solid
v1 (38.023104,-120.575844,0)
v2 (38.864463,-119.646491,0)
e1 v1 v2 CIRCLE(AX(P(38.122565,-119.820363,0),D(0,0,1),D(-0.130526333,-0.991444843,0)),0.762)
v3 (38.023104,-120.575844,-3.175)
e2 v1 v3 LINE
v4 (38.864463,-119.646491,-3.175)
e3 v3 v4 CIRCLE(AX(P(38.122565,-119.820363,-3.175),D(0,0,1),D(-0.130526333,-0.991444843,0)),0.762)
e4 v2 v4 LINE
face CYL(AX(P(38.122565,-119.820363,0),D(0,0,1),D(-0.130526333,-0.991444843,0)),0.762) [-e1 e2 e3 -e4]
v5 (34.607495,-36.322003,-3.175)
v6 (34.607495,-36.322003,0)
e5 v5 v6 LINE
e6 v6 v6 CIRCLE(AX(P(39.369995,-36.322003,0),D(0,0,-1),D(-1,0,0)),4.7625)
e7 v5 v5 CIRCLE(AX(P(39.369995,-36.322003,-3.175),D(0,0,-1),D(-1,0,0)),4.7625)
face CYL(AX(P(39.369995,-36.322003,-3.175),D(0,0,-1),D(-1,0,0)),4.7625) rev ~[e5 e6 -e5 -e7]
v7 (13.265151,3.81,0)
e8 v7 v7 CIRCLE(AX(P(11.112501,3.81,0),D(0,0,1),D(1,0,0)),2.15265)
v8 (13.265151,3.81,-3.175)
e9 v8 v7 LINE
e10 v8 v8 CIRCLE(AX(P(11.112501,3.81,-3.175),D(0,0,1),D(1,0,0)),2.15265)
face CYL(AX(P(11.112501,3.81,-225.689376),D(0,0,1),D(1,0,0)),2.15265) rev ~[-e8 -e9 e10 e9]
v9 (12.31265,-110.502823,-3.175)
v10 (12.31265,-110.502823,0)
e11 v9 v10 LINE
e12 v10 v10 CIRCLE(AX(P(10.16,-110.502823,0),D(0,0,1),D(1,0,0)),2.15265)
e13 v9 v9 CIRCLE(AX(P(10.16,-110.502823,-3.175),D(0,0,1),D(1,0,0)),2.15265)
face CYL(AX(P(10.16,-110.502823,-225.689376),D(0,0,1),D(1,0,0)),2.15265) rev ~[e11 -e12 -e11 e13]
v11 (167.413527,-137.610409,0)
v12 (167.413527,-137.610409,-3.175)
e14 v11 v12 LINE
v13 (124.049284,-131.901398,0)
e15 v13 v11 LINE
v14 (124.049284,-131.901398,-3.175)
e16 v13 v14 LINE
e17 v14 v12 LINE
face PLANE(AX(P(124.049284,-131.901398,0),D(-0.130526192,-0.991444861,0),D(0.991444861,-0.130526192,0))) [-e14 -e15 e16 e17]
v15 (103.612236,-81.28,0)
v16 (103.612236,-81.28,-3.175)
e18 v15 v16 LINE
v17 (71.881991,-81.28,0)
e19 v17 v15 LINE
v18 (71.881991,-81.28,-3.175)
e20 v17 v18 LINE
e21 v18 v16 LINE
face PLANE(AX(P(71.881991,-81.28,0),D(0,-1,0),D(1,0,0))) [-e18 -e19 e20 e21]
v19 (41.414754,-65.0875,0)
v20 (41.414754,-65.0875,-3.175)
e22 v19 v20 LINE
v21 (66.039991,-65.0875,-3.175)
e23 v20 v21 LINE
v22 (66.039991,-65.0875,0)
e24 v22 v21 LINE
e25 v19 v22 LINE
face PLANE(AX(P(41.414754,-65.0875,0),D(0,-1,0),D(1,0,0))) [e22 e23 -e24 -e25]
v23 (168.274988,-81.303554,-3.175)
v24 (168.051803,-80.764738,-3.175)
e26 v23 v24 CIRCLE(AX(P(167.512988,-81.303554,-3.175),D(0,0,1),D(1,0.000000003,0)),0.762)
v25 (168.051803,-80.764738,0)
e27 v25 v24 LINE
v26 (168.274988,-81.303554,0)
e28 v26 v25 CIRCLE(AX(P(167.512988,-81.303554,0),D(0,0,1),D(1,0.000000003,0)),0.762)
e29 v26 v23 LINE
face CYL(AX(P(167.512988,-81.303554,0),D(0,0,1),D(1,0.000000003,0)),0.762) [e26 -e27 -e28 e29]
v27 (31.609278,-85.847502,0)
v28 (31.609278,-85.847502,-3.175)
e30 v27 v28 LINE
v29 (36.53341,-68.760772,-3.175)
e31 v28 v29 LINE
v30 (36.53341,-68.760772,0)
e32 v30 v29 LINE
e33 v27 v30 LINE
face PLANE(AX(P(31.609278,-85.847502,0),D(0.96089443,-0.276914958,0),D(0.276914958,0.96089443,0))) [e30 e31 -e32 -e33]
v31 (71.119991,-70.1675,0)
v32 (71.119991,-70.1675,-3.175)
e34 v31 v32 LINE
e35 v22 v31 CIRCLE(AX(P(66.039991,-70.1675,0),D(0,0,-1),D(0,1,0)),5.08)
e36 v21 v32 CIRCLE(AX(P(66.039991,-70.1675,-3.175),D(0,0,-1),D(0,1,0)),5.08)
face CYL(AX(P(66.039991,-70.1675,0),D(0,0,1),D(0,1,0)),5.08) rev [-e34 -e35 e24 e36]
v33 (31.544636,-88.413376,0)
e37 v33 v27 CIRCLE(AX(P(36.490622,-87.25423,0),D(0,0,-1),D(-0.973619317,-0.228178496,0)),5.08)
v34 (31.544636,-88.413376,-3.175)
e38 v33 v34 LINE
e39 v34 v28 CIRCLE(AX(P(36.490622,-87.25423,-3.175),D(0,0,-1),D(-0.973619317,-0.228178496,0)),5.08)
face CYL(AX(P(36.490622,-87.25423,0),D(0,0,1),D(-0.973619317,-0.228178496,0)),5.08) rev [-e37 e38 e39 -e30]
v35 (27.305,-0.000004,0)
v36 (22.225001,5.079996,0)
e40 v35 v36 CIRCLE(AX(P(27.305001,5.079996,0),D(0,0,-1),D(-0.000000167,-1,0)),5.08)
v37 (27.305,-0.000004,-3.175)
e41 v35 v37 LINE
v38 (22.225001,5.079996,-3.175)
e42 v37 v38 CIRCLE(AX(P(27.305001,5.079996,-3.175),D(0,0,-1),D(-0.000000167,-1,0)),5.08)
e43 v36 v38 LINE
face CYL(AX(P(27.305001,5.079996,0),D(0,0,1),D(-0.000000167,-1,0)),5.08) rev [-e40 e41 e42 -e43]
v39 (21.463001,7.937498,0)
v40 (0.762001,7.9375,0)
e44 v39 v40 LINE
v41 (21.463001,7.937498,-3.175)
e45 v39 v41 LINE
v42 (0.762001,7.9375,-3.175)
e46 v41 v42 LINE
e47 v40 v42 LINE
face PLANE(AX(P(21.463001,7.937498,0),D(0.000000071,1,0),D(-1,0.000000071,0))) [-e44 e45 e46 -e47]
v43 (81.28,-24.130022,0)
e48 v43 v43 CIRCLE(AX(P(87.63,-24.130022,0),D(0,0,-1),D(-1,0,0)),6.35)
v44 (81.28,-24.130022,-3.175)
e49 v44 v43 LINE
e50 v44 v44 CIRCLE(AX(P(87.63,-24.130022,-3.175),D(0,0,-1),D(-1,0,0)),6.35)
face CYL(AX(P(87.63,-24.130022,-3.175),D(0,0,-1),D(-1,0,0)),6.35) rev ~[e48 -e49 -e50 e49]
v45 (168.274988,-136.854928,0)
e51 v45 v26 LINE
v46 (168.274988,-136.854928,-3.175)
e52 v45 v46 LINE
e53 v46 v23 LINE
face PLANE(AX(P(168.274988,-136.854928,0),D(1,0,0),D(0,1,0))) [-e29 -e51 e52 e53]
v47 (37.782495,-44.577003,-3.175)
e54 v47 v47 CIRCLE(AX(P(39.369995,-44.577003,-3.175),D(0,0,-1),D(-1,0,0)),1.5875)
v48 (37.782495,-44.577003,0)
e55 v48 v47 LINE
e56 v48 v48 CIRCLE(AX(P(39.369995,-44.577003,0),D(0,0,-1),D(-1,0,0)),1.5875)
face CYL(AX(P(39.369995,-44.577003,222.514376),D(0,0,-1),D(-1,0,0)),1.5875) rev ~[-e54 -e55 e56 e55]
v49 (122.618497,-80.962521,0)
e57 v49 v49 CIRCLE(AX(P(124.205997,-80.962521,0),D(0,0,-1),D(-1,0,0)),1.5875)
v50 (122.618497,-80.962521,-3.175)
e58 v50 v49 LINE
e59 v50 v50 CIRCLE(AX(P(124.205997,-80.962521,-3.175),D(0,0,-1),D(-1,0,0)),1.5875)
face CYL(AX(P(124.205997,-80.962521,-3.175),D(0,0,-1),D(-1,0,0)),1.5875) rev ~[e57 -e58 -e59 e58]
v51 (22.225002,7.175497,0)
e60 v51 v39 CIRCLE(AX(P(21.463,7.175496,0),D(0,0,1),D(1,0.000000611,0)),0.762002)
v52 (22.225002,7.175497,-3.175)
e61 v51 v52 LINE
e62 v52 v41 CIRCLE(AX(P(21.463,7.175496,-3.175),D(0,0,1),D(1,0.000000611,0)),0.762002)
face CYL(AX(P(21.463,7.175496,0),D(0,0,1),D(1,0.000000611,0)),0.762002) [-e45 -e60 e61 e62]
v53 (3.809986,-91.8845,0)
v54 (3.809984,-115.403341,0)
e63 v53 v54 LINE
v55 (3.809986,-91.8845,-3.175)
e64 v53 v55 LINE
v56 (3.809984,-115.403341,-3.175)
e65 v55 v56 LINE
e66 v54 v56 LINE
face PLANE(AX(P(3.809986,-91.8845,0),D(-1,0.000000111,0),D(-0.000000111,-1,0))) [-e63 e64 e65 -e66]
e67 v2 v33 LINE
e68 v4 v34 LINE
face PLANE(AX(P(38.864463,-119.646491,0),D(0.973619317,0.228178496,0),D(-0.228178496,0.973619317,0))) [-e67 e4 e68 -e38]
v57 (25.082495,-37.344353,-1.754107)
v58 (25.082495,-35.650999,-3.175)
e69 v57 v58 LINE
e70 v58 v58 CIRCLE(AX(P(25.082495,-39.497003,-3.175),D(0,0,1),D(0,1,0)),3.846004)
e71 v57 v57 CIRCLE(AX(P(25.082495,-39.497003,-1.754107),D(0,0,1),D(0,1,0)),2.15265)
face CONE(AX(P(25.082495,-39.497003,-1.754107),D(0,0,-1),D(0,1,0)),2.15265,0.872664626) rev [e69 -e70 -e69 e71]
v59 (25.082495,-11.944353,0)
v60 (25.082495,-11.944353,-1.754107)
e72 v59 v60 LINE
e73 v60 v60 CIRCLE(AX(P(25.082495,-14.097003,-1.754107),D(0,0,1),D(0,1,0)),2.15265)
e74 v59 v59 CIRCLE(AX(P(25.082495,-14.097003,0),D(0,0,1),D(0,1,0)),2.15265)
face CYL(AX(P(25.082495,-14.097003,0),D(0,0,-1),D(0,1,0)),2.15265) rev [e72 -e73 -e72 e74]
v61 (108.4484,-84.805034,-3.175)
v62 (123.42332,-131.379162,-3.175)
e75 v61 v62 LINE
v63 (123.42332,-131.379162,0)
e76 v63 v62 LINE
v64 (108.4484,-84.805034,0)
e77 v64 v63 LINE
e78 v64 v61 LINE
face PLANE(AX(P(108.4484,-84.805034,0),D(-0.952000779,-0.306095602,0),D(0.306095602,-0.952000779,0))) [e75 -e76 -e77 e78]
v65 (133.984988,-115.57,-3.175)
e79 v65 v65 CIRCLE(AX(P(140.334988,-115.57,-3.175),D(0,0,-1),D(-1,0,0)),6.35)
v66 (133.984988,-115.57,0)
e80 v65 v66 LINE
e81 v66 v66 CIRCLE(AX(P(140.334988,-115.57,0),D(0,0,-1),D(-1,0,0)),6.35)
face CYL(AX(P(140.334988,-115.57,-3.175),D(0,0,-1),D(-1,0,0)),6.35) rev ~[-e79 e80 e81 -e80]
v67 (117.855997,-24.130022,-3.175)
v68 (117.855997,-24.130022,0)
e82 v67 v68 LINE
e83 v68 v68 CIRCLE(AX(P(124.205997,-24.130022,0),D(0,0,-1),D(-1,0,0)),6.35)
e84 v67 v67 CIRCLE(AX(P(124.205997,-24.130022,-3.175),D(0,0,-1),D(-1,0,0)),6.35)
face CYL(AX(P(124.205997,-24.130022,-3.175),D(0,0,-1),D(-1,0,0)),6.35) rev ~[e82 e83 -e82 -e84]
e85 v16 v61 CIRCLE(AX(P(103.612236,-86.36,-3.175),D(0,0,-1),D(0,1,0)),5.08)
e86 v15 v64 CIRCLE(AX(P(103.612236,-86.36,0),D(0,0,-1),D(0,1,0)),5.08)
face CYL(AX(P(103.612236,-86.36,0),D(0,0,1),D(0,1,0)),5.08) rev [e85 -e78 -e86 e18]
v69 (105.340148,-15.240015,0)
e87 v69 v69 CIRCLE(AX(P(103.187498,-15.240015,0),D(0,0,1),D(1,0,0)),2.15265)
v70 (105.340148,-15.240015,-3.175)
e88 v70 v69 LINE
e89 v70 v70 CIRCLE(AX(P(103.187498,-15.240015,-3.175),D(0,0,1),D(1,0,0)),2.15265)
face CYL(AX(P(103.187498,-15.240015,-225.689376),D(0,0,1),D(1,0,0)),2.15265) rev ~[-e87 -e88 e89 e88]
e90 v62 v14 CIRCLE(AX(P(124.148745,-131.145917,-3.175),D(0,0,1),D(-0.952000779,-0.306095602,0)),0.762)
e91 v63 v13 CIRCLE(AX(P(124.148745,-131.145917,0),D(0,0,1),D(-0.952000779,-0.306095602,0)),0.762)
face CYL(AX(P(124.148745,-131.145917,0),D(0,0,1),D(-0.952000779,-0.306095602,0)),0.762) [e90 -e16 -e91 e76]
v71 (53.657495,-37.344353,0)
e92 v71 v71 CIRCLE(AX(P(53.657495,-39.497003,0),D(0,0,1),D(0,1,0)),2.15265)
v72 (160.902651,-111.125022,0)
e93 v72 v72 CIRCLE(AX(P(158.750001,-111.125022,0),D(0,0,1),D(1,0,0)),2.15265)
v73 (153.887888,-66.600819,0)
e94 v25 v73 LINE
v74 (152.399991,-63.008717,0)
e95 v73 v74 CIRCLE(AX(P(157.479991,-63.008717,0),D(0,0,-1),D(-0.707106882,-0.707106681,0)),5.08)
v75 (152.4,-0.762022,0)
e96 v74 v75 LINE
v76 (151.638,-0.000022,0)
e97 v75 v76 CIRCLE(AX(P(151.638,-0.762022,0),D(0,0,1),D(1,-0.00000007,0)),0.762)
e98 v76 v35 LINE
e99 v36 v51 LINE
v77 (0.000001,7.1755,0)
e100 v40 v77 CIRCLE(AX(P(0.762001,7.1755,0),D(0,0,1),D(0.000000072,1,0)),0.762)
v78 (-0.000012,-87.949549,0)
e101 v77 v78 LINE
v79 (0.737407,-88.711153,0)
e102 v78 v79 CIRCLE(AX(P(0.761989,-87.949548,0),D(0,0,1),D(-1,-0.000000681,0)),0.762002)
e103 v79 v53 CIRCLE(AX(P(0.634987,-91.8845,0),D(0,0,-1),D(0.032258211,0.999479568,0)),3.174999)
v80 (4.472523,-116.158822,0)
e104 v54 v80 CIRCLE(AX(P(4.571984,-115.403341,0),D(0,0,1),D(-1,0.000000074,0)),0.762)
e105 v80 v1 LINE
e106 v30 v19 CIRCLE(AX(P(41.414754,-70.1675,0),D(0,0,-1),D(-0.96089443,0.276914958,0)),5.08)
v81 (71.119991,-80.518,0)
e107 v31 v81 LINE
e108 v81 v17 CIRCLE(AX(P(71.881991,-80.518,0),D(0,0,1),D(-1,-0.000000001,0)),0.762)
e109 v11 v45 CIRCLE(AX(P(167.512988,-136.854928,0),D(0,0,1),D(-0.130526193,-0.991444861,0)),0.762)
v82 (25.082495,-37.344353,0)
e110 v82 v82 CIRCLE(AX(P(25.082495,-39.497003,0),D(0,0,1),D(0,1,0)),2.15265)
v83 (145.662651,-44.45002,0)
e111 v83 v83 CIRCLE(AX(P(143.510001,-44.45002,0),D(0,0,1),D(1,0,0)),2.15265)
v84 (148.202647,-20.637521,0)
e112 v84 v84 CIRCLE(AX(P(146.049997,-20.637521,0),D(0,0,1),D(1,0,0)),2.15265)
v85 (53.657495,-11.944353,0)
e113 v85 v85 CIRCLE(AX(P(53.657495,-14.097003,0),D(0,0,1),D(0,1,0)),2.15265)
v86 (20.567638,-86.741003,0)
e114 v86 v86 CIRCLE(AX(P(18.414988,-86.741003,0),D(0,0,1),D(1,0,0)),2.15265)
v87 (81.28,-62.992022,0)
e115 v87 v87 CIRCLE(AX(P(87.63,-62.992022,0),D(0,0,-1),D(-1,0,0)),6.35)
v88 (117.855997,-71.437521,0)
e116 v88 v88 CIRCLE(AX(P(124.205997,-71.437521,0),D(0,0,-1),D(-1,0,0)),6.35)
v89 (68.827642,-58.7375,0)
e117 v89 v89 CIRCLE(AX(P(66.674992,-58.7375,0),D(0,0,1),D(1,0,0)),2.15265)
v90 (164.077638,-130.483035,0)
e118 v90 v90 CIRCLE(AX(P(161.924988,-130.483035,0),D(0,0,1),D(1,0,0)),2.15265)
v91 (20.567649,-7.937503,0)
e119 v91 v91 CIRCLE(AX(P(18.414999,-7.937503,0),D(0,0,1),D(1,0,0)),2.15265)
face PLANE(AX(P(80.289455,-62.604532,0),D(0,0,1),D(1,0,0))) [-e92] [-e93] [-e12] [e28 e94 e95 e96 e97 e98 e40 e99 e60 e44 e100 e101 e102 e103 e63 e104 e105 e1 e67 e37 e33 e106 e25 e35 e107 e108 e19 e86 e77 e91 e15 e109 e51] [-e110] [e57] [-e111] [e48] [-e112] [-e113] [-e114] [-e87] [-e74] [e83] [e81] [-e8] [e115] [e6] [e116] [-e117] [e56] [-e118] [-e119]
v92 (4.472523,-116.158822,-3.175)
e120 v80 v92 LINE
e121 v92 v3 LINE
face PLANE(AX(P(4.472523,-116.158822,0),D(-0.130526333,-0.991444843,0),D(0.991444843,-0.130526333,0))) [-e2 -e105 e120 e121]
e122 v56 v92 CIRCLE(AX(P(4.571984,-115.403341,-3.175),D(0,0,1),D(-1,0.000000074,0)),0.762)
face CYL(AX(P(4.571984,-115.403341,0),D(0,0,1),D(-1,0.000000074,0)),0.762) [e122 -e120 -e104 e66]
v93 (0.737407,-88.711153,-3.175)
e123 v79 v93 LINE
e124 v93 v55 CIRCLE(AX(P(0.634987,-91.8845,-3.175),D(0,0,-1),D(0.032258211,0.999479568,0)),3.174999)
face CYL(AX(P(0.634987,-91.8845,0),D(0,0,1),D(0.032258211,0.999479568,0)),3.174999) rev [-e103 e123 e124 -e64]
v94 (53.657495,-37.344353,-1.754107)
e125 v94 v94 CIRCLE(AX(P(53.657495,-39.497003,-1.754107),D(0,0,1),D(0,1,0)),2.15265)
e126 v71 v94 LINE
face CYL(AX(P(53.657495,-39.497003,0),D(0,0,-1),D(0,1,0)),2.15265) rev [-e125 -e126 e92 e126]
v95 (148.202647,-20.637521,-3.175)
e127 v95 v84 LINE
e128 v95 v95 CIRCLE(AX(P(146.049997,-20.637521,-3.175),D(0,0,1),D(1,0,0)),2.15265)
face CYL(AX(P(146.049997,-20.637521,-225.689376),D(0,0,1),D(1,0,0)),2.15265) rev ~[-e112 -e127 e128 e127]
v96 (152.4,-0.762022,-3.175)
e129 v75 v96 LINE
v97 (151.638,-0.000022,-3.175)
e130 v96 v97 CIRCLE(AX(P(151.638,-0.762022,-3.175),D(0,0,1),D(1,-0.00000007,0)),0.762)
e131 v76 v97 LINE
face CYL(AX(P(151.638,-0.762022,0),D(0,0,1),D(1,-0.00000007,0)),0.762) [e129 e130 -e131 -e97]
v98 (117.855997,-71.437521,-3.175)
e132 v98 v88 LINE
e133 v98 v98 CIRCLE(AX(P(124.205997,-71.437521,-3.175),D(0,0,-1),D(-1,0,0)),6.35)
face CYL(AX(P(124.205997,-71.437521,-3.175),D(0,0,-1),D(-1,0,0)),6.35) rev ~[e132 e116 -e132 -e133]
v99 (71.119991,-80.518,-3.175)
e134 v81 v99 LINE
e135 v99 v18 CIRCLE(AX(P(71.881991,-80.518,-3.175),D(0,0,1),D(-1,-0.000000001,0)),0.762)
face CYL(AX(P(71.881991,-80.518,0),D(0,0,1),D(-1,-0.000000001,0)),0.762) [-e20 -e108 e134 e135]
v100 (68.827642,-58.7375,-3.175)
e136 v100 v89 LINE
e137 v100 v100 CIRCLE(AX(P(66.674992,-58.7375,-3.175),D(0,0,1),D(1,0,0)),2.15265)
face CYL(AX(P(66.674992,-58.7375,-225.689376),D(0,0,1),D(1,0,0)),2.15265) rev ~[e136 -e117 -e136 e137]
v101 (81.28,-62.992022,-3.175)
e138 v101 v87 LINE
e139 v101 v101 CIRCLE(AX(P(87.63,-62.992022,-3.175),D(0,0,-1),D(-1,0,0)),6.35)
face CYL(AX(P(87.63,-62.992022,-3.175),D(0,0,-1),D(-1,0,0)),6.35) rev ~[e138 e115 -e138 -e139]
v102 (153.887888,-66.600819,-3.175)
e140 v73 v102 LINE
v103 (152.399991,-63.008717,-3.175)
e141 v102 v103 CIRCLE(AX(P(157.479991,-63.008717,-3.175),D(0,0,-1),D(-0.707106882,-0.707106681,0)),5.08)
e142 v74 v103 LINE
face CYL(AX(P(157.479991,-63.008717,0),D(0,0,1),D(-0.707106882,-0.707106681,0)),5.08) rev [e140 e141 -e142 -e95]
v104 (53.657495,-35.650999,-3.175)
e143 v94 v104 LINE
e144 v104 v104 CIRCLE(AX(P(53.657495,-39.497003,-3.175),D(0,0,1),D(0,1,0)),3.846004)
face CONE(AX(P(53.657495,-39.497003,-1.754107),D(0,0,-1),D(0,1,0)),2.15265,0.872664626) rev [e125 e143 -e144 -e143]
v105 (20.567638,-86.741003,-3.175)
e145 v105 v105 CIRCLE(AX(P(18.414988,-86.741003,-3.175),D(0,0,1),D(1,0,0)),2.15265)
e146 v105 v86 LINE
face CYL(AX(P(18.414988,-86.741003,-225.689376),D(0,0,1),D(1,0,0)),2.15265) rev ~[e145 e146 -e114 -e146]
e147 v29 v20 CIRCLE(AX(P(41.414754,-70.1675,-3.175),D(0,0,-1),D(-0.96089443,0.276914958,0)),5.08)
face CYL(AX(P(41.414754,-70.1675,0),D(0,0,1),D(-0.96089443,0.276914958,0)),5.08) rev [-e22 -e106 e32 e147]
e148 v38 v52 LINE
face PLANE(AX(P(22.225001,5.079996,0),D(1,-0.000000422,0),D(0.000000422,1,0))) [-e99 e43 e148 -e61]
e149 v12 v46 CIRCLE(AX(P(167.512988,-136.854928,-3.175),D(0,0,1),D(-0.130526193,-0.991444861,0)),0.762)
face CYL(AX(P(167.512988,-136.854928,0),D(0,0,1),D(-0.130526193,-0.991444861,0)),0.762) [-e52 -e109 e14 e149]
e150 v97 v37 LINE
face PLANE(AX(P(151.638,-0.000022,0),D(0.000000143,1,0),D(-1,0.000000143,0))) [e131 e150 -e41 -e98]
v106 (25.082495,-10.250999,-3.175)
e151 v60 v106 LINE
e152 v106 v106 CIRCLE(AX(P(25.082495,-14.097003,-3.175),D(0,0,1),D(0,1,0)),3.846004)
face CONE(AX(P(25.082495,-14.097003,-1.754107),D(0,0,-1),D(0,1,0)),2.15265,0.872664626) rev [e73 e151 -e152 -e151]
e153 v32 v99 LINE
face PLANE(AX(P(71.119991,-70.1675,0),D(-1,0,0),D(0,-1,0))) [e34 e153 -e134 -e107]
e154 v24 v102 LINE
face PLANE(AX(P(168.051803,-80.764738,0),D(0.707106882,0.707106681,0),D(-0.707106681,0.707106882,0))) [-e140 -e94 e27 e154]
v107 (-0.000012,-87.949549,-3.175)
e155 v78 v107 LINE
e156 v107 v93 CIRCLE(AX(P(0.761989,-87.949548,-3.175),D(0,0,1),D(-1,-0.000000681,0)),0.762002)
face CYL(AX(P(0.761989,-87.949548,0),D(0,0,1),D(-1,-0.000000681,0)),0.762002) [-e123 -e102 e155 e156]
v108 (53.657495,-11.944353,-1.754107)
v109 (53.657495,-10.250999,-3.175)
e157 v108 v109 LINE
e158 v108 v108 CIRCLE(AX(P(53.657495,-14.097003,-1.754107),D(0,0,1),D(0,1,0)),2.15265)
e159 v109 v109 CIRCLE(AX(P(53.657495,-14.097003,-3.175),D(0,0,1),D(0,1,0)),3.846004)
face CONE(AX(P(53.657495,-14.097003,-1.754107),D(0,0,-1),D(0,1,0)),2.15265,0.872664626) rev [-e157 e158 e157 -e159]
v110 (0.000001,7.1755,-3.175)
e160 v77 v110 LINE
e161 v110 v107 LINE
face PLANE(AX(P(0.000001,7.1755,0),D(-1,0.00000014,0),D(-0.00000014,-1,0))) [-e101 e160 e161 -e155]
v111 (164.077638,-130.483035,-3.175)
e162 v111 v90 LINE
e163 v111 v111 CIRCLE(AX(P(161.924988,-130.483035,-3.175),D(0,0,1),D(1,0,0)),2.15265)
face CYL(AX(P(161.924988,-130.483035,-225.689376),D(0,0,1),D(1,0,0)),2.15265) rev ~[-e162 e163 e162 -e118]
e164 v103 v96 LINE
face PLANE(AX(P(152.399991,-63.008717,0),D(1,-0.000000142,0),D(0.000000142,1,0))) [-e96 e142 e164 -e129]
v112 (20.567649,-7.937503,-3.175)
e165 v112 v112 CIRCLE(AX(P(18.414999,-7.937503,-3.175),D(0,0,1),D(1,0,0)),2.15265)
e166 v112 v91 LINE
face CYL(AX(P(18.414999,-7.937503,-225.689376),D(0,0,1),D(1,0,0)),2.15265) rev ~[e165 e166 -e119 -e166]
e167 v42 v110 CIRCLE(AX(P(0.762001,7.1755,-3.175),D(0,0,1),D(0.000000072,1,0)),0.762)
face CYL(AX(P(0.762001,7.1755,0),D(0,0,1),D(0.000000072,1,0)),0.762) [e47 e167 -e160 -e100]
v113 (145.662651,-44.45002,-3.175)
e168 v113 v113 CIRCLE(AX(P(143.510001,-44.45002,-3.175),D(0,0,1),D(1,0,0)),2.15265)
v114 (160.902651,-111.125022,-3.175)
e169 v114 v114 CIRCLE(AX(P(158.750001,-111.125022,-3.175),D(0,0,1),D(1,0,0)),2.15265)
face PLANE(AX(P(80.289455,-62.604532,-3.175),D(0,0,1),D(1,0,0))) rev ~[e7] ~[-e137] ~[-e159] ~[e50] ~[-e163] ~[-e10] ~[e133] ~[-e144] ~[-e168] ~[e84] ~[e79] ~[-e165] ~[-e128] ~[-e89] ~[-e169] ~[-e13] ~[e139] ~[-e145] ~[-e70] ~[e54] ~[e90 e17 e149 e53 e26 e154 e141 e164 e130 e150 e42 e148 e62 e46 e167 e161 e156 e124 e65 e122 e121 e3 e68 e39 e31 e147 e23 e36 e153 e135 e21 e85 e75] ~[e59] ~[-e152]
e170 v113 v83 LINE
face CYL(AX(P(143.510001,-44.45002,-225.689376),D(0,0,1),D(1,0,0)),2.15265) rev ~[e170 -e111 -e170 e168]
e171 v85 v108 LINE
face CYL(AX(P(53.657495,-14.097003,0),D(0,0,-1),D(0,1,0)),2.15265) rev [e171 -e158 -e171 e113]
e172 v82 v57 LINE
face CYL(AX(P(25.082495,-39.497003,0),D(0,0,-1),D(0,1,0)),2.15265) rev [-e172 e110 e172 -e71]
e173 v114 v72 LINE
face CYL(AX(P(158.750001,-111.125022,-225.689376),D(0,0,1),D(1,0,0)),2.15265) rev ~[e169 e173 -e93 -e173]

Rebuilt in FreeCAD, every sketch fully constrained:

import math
import FreeCAD as App
import Part
import Sketcher

V = App.Vector
Q = App.Units.Quantity

doc = App.newDocument("Part")
body = doc.addObject("PartDesign::Body", "Body")

# Sketch on XY plane
sketch1 = body.newObject("Sketcher::SketchObject", "Sketch")
sketch1.AttachmentSupport = (doc.getObject("XY_Plane"), [""])
sketch1.MapMode = "FlatFace"
sketch1.addGeometry([
    Part.LineSegment(V(3.809986, -91.8845, 0), V(3.809984, -115.403341, 0)),  # 0
    Part.ArcOfCircle(Part.Circle(V(4.571984, -115.403341, 0), V(0, 0, 1), 0.762), math.radians(179.999996), math.radians(262.499992)),  # 1
    Part.LineSegment(V(4.472523, -116.158822, 0), V(38.023104, -120.575844, 0)),  # 2
    Part.ArcOfCircle(Part.Circle(V(38.122565, -119.820363, 0), V(0, 0, 1), 0.762), math.radians(-97.500008), math.radians(13.189856)),  # 3
    Part.LineSegment(V(38.864463, -119.646491, 0), V(31.544636, -88.413376, 0)),  # 4
    Part.ArcOfCircle(Part.Circle(V(36.490622, -87.25423, 0), V(0, 0, 1), 5.08), math.radians(163.923834), math.radians(193.189856)),  # 5
    Part.LineSegment(V(31.609278, -85.847502, 0), V(36.53341, -68.760772, 0)),  # 6
    Part.ArcOfCircle(Part.Circle(V(41.414754, -70.1675, 0), V(0, 0, 1), 5.08), math.radians(90), math.radians(163.923834)),  # 7
    Part.LineSegment(V(41.414754, -65.0875, 0), V(66.039991, -65.0875, 0)),  # 8
    Part.ArcOfCircle(Part.Circle(V(66.039991, -70.1675, 0), V(0, 0, 1), 5.08), math.radians(0), math.radians(90)),  # 9
    Part.LineSegment(V(71.119991, -70.1675, 0), V(71.119991, -80.518, 0)),  # 10
    Part.ArcOfCircle(Part.Circle(V(71.881991, -80.518, 0), V(0, 0, 1), 0.762), math.radians(-180), math.radians(-90)),  # 11
    Part.LineSegment(V(71.881991, -81.28, 0), V(103.612236, -81.28, 0)),  # 12
    Part.ArcOfCircle(Part.Circle(V(103.612236, -86.36, 0), V(0, 0, 1), 5.08), math.radians(17.82409), math.radians(90)),  # 13
    Part.LineSegment(V(108.4484, -84.805034, 0), V(123.42332, -131.379162, 0)),  # 14
    Part.ArcOfCircle(Part.Circle(V(124.148745, -131.145917, 0), V(0, 0, 1), 0.762), math.radians(-162.17591), math.radians(-97.5)),  # 15
    Part.LineSegment(V(124.049284, -131.901398, 0), V(167.413527, -137.610409, 0)),  # 16
    Part.ArcOfCircle(Part.Circle(V(167.512988, -136.854928, 0), V(0, 0, 1), 0.762), math.radians(-97.5), math.radians(0)),  # 17
    Part.LineSegment(V(168.274988, -136.854928, 0), V(168.274988, -81.303554, 0)),  # 18
    Part.ArcOfCircle(Part.Circle(V(167.512988, -81.303554, 0), V(0, 0, 1), 0.762), math.radians(0), math.radians(44.999992)),  # 19
    Part.LineSegment(V(168.051803, -80.764738, 0), V(153.887888, -66.600819, 0)),  # 20
    Part.ArcOfCircle(Part.Circle(V(157.479991, -63.008717, 0), V(0, 0, 1), 5.08), math.radians(179.999996), math.radians(224.999992)),  # 21
    Part.LineSegment(V(152.399991, -63.008717, 0), V(152.4, -0.762022, 0)),  # 22
    Part.ArcOfCircle(Part.Circle(V(151.638, -0.762022, 0), V(0, 0, 1), 0.762), math.radians(-0.000004), math.radians(89.999992)),  # 23
    Part.LineSegment(V(151.638, -0.000022, 0), V(27.305, -0.000004, 0)),  # 24
    Part.ArcOfCircle(Part.Circle(V(27.305001, 5.079996, 0), V(0, 0, 1), 5.08), math.radians(-179.999999), math.radians(-90.00001)),  # 25
    Part.LineSegment(V(22.225001, 5.079996, 0), V(22.225002, 7.175497, 0)),  # 26
    Part.ArcOfCircle(Part.Circle(V(21.463, 7.175496, 0), V(0, 0, 1), 0.762002), math.radians(0.000035), math.radians(89.999902)),  # 27
    Part.LineSegment(V(21.463001, 7.937498, 0), V(0.762001, 7.9375, 0)),  # 28
    Part.ArcOfCircle(Part.Circle(V(0.762001, 7.1755, 0), V(0, 0, 1), 0.762), math.radians(89.999996), math.radians(179.999996)),  # 29
    Part.LineSegment(V(0.000001, 7.1755, 0), V(-0.000012, -87.949549, 0)),  # 30
    Part.ArcOfCircle(Part.Circle(V(0.761989, -87.949548, 0), V(0, 0, 1), 0.762002), math.radians(-179.999961), math.radians(-91.848694)),  # 31
    Part.ArcOfCircle(Part.Circle(V(0.634987, -91.8845, 0), V(0, 0, 1), 3.174999), math.radians(-0.000004), math.radians(88.15142)),  # 32
], False)
sketch1.addConstraint([
    Sketcher.Constraint("Coincident", 0, 2, 1, 1),
    Sketcher.Constraint("Coincident", 1, 2, 2, 1),
    Sketcher.Constraint("Coincident", 2, 2, 3, 1),
    Sketcher.Constraint("Coincident", 3, 2, 4, 1),
    Sketcher.Constraint("Coincident", 4, 2, 5, 2),
    Sketcher.Constraint("Coincident", 5, 1, 6, 1),
    Sketcher.Constraint("Coincident", 6, 2, 7, 2),
    Sketcher.Constraint("Coincident", 7, 1, 8, 1),
    Sketcher.Constraint("Coincident", 8, 2, 9, 2),
    Sketcher.Constraint("Coincident", 9, 1, 10, 1),
    Sketcher.Constraint("Coincident", 10, 2, 11, 1),
    Sketcher.Constraint("Coincident", 11, 2, 12, 1),
    Sketcher.Constraint("Coincident", 12, 2, 13, 2),
    Sketcher.Constraint("Coincident", 13, 1, 14, 1),
    Sketcher.Constraint("Coincident", 14, 2, 15, 1),
    Sketcher.Constraint("Coincident", 15, 2, 16, 1),
    Sketcher.Constraint("Coincident", 16, 2, 17, 1),
    Sketcher.Constraint("Coincident", 17, 2, 18, 1),
    Sketcher.Constraint("Coincident", 18, 2, 19, 1),
    Sketcher.Constraint("Coincident", 19, 2, 20, 1),
    Sketcher.Constraint("Coincident", 20, 2, 21, 2),
    Sketcher.Constraint("Coincident", 21, 1, 22, 1),
    Sketcher.Constraint("Coincident", 22, 2, 23, 1),
    Sketcher.Constraint("Coincident", 23, 2, 24, 1),
    Sketcher.Constraint("Coincident", 24, 2, 25, 2),
    Sketcher.Constraint("Coincident", 25, 1, 26, 1),
    Sketcher.Constraint("Coincident", 26, 2, 27, 1),
    Sketcher.Constraint("Coincident", 27, 2, 28, 1),
    Sketcher.Constraint("Coincident", 28, 2, 29, 1),
    Sketcher.Constraint("Coincident", 29, 2, 30, 1),
    Sketcher.Constraint("Coincident", 30, 2, 31, 1),
    Sketcher.Constraint("Coincident", 31, 2, 32, 2),
    Sketcher.Constraint("Coincident", 32, 1, 0, 1),
    Sketcher.Constraint("Horizontal", 8),
    Sketcher.Constraint("Vertical", 10),
    Sketcher.Constraint("Horizontal", 12),
    Sketcher.Constraint("Vertical", 18),
    Sketcher.Constraint("Vertical", 26),
    Sketcher.Constraint("Horizontal", 28),
    Sketcher.Constraint("PointOnObject", 29, 2, -2),
    Sketcher.Constraint("Radius", 5, Q("0.2 in")),
    Sketcher.Constraint("Radius", 7, Q("0.2 in")),
    Sketcher.Constraint("Radius", 9, Q("0.2 in")),
    Sketcher.Constraint("Radius", 13, Q("0.2 in")),
    Sketcher.Constraint("Radius", 21, Q("0.2 in")),
    Sketcher.Constraint("Radius", 25, Q("0.2 in")),
    Sketcher.Constraint("Radius", 1, Q("0.03 in")),
    Sketcher.Constraint("Radius", 3, Q("0.03 in")),
    Sketcher.Constraint("Radius", 11, Q("0.03 in")),
    Sketcher.Constraint("Radius", 15, Q("0.03 in")),
    Sketcher.Constraint("Radius", 17, Q("0.03 in")),
    Sketcher.Constraint("Radius", 19, Q("0.03 in")),
    Sketcher.Constraint("Radius", 23, Q("0.03 in")),
    Sketcher.Constraint("Radius", 27, Q("0.0300001 in")),
    Sketcher.Constraint("Radius", 29, Q("0.03 in")),
    Sketcher.Constraint("Radius", 31, Q("0.0300001 in")),
    Sketcher.Constraint("DistanceX", -1, 1, 22, 2, Q("6 in")),
    Sketcher.Constraint("Radius", 32, Q("0.125 in")),
    Sketcher.Constraint("DistanceY", 13, 3, -1, 1, Q("3.4 in")),
    Sketcher.Constraint("DistanceY", -1, 1, 25, 3, Q("0.1999998 in")),
    Sketcher.Constraint("DistanceY", -1, 1, 25, 1, Q("0.1999998 in")),
    Sketcher.Constraint("DistanceX", 8, 2, 9, 1, Q("0.2 in")),
    Sketcher.Constraint("DistanceY", 9, 1, 8, 2, Q("0.2 in")),
    Sketcher.Constraint("DistanceX", 25, 1, 24, 2, Q("0.2 in")),
    Sketcher.Constraint("DistanceX", 28, 2, 28, 1, Q("0.815 in")),
    Sketcher.Constraint("DistanceY", 10, 2, -1, 1, Q("3.17 in")),
    Sketcher.Constraint("DistanceX", -1, 1, 23, 2, Q("5.97 in")),
    Sketcher.Constraint("DistanceX", -1, 1, 28, 2, Q("0.03 in")),
    Sketcher.Constraint("DistanceX", 11, 3, 21, 3, Q("3.37 in")),
    Sketcher.Constraint("DistanceX", 31, 3, 9, 3, Q("2.5700001 in")),
    Sketcher.Constraint("DistanceX", 10, 2, 11, 2, Q("0.03 in")),
    Sketcher.Constraint("DistanceY", 22, 2, 23, 2, Q("0.03 in")),
    Sketcher.Constraint("DistanceX", 27, 2, 26, 2, Q("0.03 in")),
    Sketcher.Constraint("DistanceY", 26, 2, 27, 2, Q("0.0300001 in")),
    Sketcher.Constraint("DistanceY", 29, 2, 28, 2, Q("0.03 in")),
    Sketcher.Constraint("DistanceX", 30, 2, 0, 2, Q("0.1499998 in")),
    Sketcher.Constraint("DistanceX", 31, 3, 32, 1, Q("0.1199999 in")),
    Sketcher.Constraint("DistanceY", 10, 2, 10, 1, Q("0.4075 in")),
    Sketcher.Constraint("DistanceY", 26, 1, 26, 2, Q("0.0825 in")),
    Sketcher.Constraint("DistanceX", 11, 3, 17, 3, Q("3.7649999 in")),
    Sketcher.Constraint("DistanceY", 32, 3, 7, 3, Q("0.855 in")),
    Sketcher.Constraint("DistanceY", 32, 1, -1, 1, Q("3.6175 in")),
    Sketcher.Constraint("DistanceX", 13, 3, 13, 1, Q("0.1904002 in")),
    Sketcher.Constraint("DistanceX", 12, 2, 13, 1, Q("0.1904002 in")),
    Sketcher.Constraint("DistanceY", 5, 1, -1, 1, Q("85.847502 mm")),
    Sketcher.Constraint("DistanceX", -1, 1, 13, 1, Q("108.4484 mm")),
    Sketcher.Constraint("DistanceY", 15, 2, -1, 1, Q("131.901398 mm")),
    Sketcher.Constraint("DistanceY", 15, 3, 21, 3, Q("68.1372 mm")),
    Sketcher.Constraint("DistanceY", 20, 2, 21, 3, Q("3.592102 mm")),
    Sketcher.Constraint("Distance", 0, Q("23.51884 mm")),
    Sketcher.Constraint("Distance", 2, Q("33.840089 mm")),
    Sketcher.Constraint("Distance", 4, Q("32.079391 mm")),
    Sketcher.Constraint("Distance", 6, Q("17.782109 mm")),
    Sketcher.Constraint("Distance", 16, Q("43.738431 mm")),
    Sketcher.Constraint("Distance", 30, Q("95.125049 mm")),
    Sketcher.Constraint("DistanceX", 8, 1, 8, 2, Q("24.625237 mm")),
    Sketcher.Constraint("DistanceX", 12, 1, 12, 2, Q("31.730245 mm")),
    Sketcher.Constraint("DistanceY", 18, 1, 18, 2, Q("55.551374 mm")),
    Sketcher.Constraint("DistanceY", 1, 3, -1, 1, Q("115.403341 mm")),
    Sketcher.Constraint("DistanceY", 5, 3, -1, 1, Q("87.25423 mm")),
    Sketcher.Constraint("DistanceY", 23, 3, -1, 1, Q("0.762022 mm")),
    Sketcher.Constraint("DistanceY", 1, 2, -1, 1, Q("116.158822 mm")),
    Sketcher.Constraint("DistanceY", 3, 2, -1, 1, Q("119.646491 mm")),
    Sketcher.Constraint("DistanceX", -1, 1, 5, 1, Q("31.609278 mm")),
    Sketcher.Constraint("DistanceX", -1, 1, 6, 2, Q("36.53341 mm")),
    Sketcher.Constraint("DistanceX", -1, 1, 14, 2, Q("123.42332 mm")),
    Sketcher.Constraint("DistanceY", 14, 2, -1, 1, Q("131.379162 mm")),
    Sketcher.Constraint("DistanceY", 16, 2, -1, 1, Q("137.610409 mm")),
    Sketcher.Constraint("DistanceY", 19, 2, -1, 1, Q("80.764738 mm")),
    Sketcher.Constraint("DistanceY", 20, 2, -1, 1, Q("66.600819 mm")),
    Sketcher.Constraint("DistanceX", 1, 3, 3, 3, Q("33.550582 mm")),
    Sketcher.Constraint("DistanceY", 3, 3, 1, 2, Q("3.661542 mm")),
    Sketcher.Constraint("DistanceY", 16, 2, 17, 2, Q("0.755481 mm")),
    Sketcher.Constraint("DistanceX", 21, 3, 19, 2, Q("10.571812 mm")),
    Sketcher.Constraint("DistanceY", 19, 2, 21, 1, Q("17.756021 mm")),
    Sketcher.Constraint("DistanceX", 30, 2, 31, 2, Q("0.737419 mm")),
])
pad1 = body.newObject("PartDesign::Pad", "Pad")
pad1.Profile = sketch1
pad1.Length = Q("0.125 in")
pad1.Reversed = True

# Sketch on XY plane
sketch2 = body.newObject("Sketcher::SketchObject", "Sketch001")
sketch2.AttachmentSupport = (doc.getObject("XY_Plane"), [""])
sketch2.MapMode = "FlatFace"
sketch2.AttachmentOffset = App.Placement(V(0, 0, -0.125 * 25.4), App.Rotation())
sketch2.addGeometry([
    Part.Circle(V(11.1, 3.8, 0), V(0, 0, 1), 2.2),  # 0
    Part.Circle(V(18.4, -7.9, 0), V(0, 0, 1), 2.2),  # 1
    Part.Circle(V(103.2, -15.2, 0), V(0, 0, 1), 2.2),  # 2
    Part.Circle(V(143.5, -44.5, 0), V(0, 0, 1), 2.2),  # 3
    Part.Circle(V(158.8, -111.1, 0), V(0, 0, 1), 2.2),  # 4
    Part.Circle(V(18.4, -86.7, 0), V(0, 0, 1), 2.2),  # 5
    Part.Circle(V(66.7, -58.7, 0), V(0, 0, 1), 2.2),  # 6
    Part.Circle(V(10.2, -110.5, 0), V(0, 0, 1), 2.2),  # 7
    Part.Circle(V(146, -20.6, 0), V(0, 0, 1), 2.2),  # 8
    Part.Circle(V(161.9, -130.5, 0), V(0, 0, 1), 2.2),  # 9
], False)
sketch2.addConstraint([
    Sketcher.Constraint("Equal", 0, 1),
    Sketcher.Constraint("Equal", 1, 2),
    Sketcher.Constraint("Equal", 2, 3),
    Sketcher.Constraint("Equal", 3, 4),
    Sketcher.Constraint("Equal", 4, 5),
    Sketcher.Constraint("Equal", 5, 6),
    Sketcher.Constraint("Equal", 6, 7),
    Sketcher.Constraint("Equal", 7, 8),
    Sketcher.Constraint("Equal", 8, 9),
    Sketcher.Constraint("DistanceY", 6, 3, 1, 3, Q("1.9999999 in")),
    Sketcher.Constraint("Diameter", 0, Q("0.1695 in")),
    Sketcher.Constraint("DistanceX", -1, 1, 7, 3, Q("0.4 in")),
    Sketcher.Constraint("DistanceX", 3, 3, 4, 3, Q("0.6 in")),
    Sketcher.Constraint("DistanceX", 5, 3, 6, 3, Q("1.9000002 in")),
    Sketcher.Constraint("DistanceX", 3, 3, 8, 3, Q("0.0999998 in")),
    Sketcher.Constraint("DistanceY", -1, 1, 0, 3, Q("0.15 in")),
    Sketcher.Constraint("DistanceX", -1, 1, 3, 3, Q("5.65 in")),
    Sketcher.Constraint("DistanceX", 6, 3, 9, 3, Q("3.7499998 in")),
    Sketcher.Constraint("DistanceX", -1, 1, 0, 3, Q("0.4375 in")),
    Sketcher.Constraint("DistanceX", -1, 1, 1, 3, Q("0.725 in")),
    Sketcher.Constraint("DistanceY", 1, 3, -1, 1, Q("0.3125001 in")),
    Sketcher.Constraint("DistanceX", -1, 1, 2, 3, Q("4.0624999 in")),
    Sketcher.Constraint("DistanceY", 5, 3, -1, 1, Q("3.4150001 in")),
    Sketcher.Constraint("DistanceY", 4, 3, 3, 3, Q("2.625 in")),
    Sketcher.Constraint("DistanceY", 3, 3, 8, 3, Q("0.9375 in")),
    Sketcher.Constraint("DistanceY", 3, 3, -1, 1, Q("44.45002 mm")),
    Sketcher.Constraint("DistanceX", -1, 1, 6, 3, Q("66.674992 mm")),
    Sketcher.Constraint("DistanceY", 2, 3, 1, 3, Q("7.302512 mm")),
    Sketcher.Constraint("DistanceY", 7, 3, 5, 3, Q("23.76182 mm")),
    Sketcher.Constraint("DistanceY", 9, 3, 2, 3, Q("115.24302 mm")),
])
doc.recompute()
hole = body.newObject("PartDesign::Hole", "Hole")
hole.Profile = sketch2
hole.ThreadType = "None"
hole.Diameter = Q("0.1695 in")
hole.DepthType = "ThroughAll"
hole.Reversed = True

# Sketch on XY plane
sketch3 = body.newObject("Sketcher::SketchObject", "Sketch002")
sketch3.AttachmentSupport = (doc.getObject("XY_Plane"), [""])
sketch3.MapMode = "FlatFace"
sketch3.AttachmentOffset = App.Placement(V(0, 0, -0.125 * 25.4), App.Rotation())
sketch3.addGeometry([
    Part.Circle(V(140.3, -115.6, 0), V(0, 0, 1), 6.3),  # 0
    Part.Circle(V(124.2, -71.4, 0), V(0, 0, 1), 6.3),  # 1
    Part.Circle(V(87.6, -63, 0), V(0, 0, 1), 6.3),  # 2
    Part.Circle(V(87.6, -24.1, 0), V(0, 0, 1), 6.3),  # 3
    Part.Circle(V(124.2, -24.1, 0), V(0, 0, 1), 6.3),  # 4
    Part.Circle(V(124.2, -81, 0), V(0, 0, 1), 1.6),  # 5
    Part.Circle(V(39.4, -36.3, 0), V(0, 0, 1), 4.8),  # 6
], False)
sketch3.addConstraint([
    Sketcher.Constraint("Equal", 0, 1),
    Sketcher.Constraint("Equal", 1, 2),
    Sketcher.Constraint("Equal", 2, 3),
    Sketcher.Constraint("Equal", 3, 4),
    Sketcher.Constraint("Horizontal", 3, 3, 4, 3),
    Sketcher.Constraint("Vertical", 2, 3, 3, 3),
    Sketcher.Constraint("Vertical", 1, 3, 4, 3),
    Sketcher.Constraint("Vertical", 4, 3, 5, 3),
    Sketcher.Constraint("Diameter", 0, Q("0.5 in")),
    Sketcher.Constraint("Diameter", 5, Q("0.125 in")),
    Sketcher.Constraint("Diameter", 6, Q("0.375 in")),
    Sketcher.Constraint("DistanceY", 0, 3, -1, 1, Q("4.55 in")),
    Sketcher.Constraint("DistanceX", -1, 1, 1, 3, Q("4.8899999 in")),
    Sketcher.Constraint("DistanceX", -1, 1, 2, 3, Q("3.45 in")),
    Sketcher.Constraint("DistanceY", 6, 3, -1, 1, Q("1.4300001 in")),
    Sketcher.Constraint("DistanceY", 2, 3, 3, 3, Q("1.53 in")),
    Sketcher.Constraint("DistanceX", 6, 3, 4, 3, Q("3.3400001 in")),
    Sketcher.Constraint("DistanceY", 5, 3, 1, 3, Q("0.375 in")),
    Sketcher.Constraint("DistanceY", 1, 3, 2, 3, Q("0.3325 in")),
    Sketcher.Constraint("DistanceY", 1, 3, -1, 1, Q("71.437521 mm")),
    Sketcher.Constraint("DistanceX", 1, 3, 0, 3, Q("16.128991 mm")),
])
pocket1 = body.newObject("PartDesign::Pocket", "Pocket")
pocket1.Profile = sketch3
pocket1.Type = "ThroughAll"
pocket1.Reversed = True

# Sketch on YZ plane
sketch4 = body.newObject("Sketcher::SketchObject", "Sketch003")
sketch4.AttachmentSupport = (doc.getObject("YZ_Plane"), [""])
sketch4.MapMode = "FlatFace"
sketch4.AttachmentOffset = App.Placement(V(0, 0, 53.657495), App.Rotation())
sketch4.addGeometry([
    Part.LineSegment(V(-14.1, 0, 0), V(-14.1, -3.2, 0)),  # 0
    Part.LineSegment(V(-14.1, -3.2, 0), V(-10.3, -3.2, 0)),  # 1
    Part.LineSegment(V(-10.3, -3.2, 0), V(-11.9, -1.8, 0)),  # 2
    Part.LineSegment(V(-11.9, -1.8, 0), V(-11.9, 0, 0)),  # 3
    Part.LineSegment(V(-11.9, 0, 0), V(-14.1, 0, 0)),  # 4
], False)
sketch4.addGeometry(Part.LineSegment(V(-14.1, -3.2, 0), V(-14.1, 0, 0)), True)  # axis
sketch4.addConstraint([
    Sketcher.Constraint("Coincident", 0, 2, 1, 1),
    Sketcher.Constraint("Coincident", 1, 2, 2, 1),
    Sketcher.Constraint("Coincident", 2, 2, 3, 1),
    Sketcher.Constraint("Coincident", 3, 2, 4, 1),
    Sketcher.Constraint("Coincident", 4, 2, 0, 1),
    Sketcher.Constraint("Vertical", 0),
    Sketcher.Constraint("Horizontal", 1),
    Sketcher.Constraint("Vertical", 3),
    Sketcher.Constraint("Horizontal", 4),
    Sketcher.Constraint("Vertical", 5),
    Sketcher.Constraint("Coincident", 5, 1, 0, 2),
    Sketcher.Constraint("PointOnObject", 3, 2, -1),
    Sketcher.Constraint("PointOnObject", 5, 2, -1),
    Sketcher.Constraint("Angle", 2, Q("140 deg")),
    Sketcher.Constraint("DistanceY", 0, 2, 0, 1, Q("0.125 in")),
    Sketcher.Constraint("DistanceX", 0, 2, -1, 1, Q("0.5550001 in")),
    Sketcher.Constraint("DistanceX", 4, 2, 4, 1, Q("2.15265 mm")),
    Sketcher.Constraint("DistanceX", 1, 2, -1, 1, Q("10.250999 mm")),
])
groove = body.newObject("PartDesign::Groove", "Groove")
groove.Profile = sketch4
groove.ReferenceAxis = (sketch4, ["Axis0"])
groove.Angle = 360
doc.recompute()

linearpattern = body.newObject("PartDesign::LinearPattern", "LinearPattern")
linearpattern.Originals = [groove]
linearpattern.Direction = (doc.getObject("X_Axis"), [""])
linearpattern.Mode = "offset"
linearpattern.Offset = Q("1.125 in")
linearpattern.Occurrences = 2
linearpattern.Reversed = True
body.Tip = linearpattern
doc.recompute()

datumline = body.newObject("PartDesign::Line", "DatumLine")
datumline.Placement = App.Placement(V(0, 0, 0), App.Rotation(V(0, 0, 1), V(-0.747409319, -0.664363839, 0)))
linearpattern2 = body.newObject("PartDesign::LinearPattern", "LinearPattern001")
linearpattern2.Originals = [groove]
linearpattern2.Direction = (datumline, [""])
linearpattern2.Mode = "offset"
linearpattern2.Offset = 38.232063
linearpattern2.Occurrences = 2
body.Tip = linearpattern2
doc.recompute()

linearpattern3 = body.newObject("PartDesign::LinearPattern", "LinearPattern002")
linearpattern3.Originals = [groove]
linearpattern3.Direction = (doc.getObject("Y_Axis"), [""])
linearpattern3.Mode = "offset"
linearpattern3.Offset = Q("1 in")
linearpattern3.Occurrences = 2
linearpattern3.Reversed = True
body.Tip = linearpattern3

# Sketch on XY plane
sketch5 = body.newObject("Sketcher::SketchObject", "Sketch004")
sketch5.AttachmentSupport = (doc.getObject("XY_Plane"), [""])
sketch5.MapMode = "FlatFace"
sketch5.AttachmentOffset = App.Placement(V(0, 0, -0.375 * 25.4), App.Rotation())
sketch5.addGeometry(Part.Circle(V(39.4, -44.6, 0), V(0, 0, 1), 0.9), False)
sketch5.addConstraint([
    Sketcher.Constraint("Diameter", 0, Q("0.073 in")),
    Sketcher.Constraint("DistanceY", 0, 3, -1, 1, Q("1.7550001 in")),
    Sketcher.Constraint("DistanceX", -1, 1, 0, 3, Q("39.369995 mm")),
])
doc.recompute()
hole2 = body.newObject("PartDesign::Hole", "Hole001")
hole2.Profile = sketch5
hole2.ThreadType = "None"
hole2.Diameter = Q("0.073 in")
hole2.DepthType = "ThroughAll"
hole2.Reversed = True

# Sketch on XY plane
sketch6 = body.newObject("Sketcher::SketchObject", "Sketch005")
sketch6.AttachmentSupport = (doc.getObject("XY_Plane"), [""])
sketch6.MapMode = "FlatFace"
sketch6.addGeometry(Part.Circle(V(39.4, -44.6, 0), V(0, 0, 1), 1.6), False)
sketch6.addConstraint([
    Sketcher.Constraint("Diameter", 0, Q("0.125 in")),
    Sketcher.Constraint("DistanceY", 0, 3, -1, 1, Q("1.7550001 in")),
    Sketcher.Constraint("DistanceX", -1, 1, 0, 3, Q("39.369995 mm")),
])
doc.recompute()
hole3 = body.newObject("PartDesign::Hole", "Hole002")
hole3.Profile = sketch6
hole3.ThreadType = "None"
hole3.Diameter = Q("0.125 in")
hole3.DepthType = "ThroughAll"

doc.recompute()
